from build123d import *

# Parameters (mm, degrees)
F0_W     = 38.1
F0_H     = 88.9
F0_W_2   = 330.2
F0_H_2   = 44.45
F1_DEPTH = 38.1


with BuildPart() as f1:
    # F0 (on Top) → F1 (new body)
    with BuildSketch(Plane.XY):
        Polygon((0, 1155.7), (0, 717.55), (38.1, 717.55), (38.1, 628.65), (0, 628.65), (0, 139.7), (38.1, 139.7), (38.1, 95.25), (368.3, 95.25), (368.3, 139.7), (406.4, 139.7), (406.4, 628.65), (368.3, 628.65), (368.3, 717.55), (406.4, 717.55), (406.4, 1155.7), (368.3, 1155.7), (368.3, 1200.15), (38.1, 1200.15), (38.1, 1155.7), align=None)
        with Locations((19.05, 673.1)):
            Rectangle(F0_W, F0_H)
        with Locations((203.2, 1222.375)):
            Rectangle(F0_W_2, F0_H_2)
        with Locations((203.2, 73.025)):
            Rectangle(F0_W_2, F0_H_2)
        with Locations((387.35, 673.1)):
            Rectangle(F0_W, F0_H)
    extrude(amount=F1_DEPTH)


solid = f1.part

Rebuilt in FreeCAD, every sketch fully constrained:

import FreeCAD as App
import Part
import Sketcher
from FreeCAD import Vector
Q = App.Units.Quantity


def add_polygon(sketch, points):
    """Adds a closed chain of lines whose ends are joined by coincident constraints."""
    first, n = sketch.GeometryCount, len(points)
    for a, b in zip(points, points[1:] + points[:1]):
        sketch.addGeometry(Part.LineSegment(App.Vector(*a, 0), App.Vector(*b, 0)), False)
    for i in range(n):
        sketch.addConstraint(Sketcher.Constraint("Coincident", first + i, 2, first + (i + 1) % n, 1))

doc = App.newDocument("Part")
params = doc.addObject("Spreadsheet::Sheet", "Params")
for row, (alias, value) in enumerate([
    ("sketch1_width", "13 in"),
    ("sketch1_height", "40 in"),
    ("sketch1_width2", "1.5 in"),
    ("sketch1_height2", "3.5 in"),
    ("pad1_length", "1.5 in"),
], start=1):
    params.set(f"A{row}", alias)
    params.set(f"B{row}", "=" + value)
    params.setAlias(f"B{row}", alias)

body = doc.addObject("PartDesign::Body", "Body")

# Sketch on XY plane
sketch1 = doc.addObject("Sketcher::SketchObject", "Sketch")
body.addObject(sketch1)
sketch1.AttachmentSupport = (doc.XY_Plane, [""])
sketch1.MapMode = "FlatFace"
add_polygon(sketch1, [(0, 1156), (0, 140), (38, 140), (38, 51), (368, 51), (368, 140), (406, 140), (406, 1156), (368, 1156), (368, 1245), (38, 1245), (38, 1156)])  # lines 0-11
sketch1.addConstraint([
    Sketcher.Constraint("Vertical", 0),
    Sketcher.Constraint("Horizontal", 1),
    Sketcher.Constraint("Vertical", 2),
    Sketcher.Constraint("Horizontal", 3),
    Sketcher.Constraint("Vertical", 4),
    Sketcher.Constraint("Horizontal", 5),
    Sketcher.Constraint("Vertical", 6),
    Sketcher.Constraint("Horizontal", 7),
    Sketcher.Constraint("Vertical", 8),
    Sketcher.Constraint("Horizontal", 9),
    Sketcher.Constraint("Vertical", 10),
    Sketcher.Constraint("Horizontal", 11),
    Sketcher.Constraint("PointOnObject", 0, 2, -2),
    Sketcher.Constraint("Horizontal", 1, 2, 4, 2),
    Sketcher.Constraint("Horizontal", 7, 2, 10, 2),
    Sketcher.Constraint("Vertical", 4, 2, 7, 2),
    Sketcher.Constraint("Vertical", 2, 2, 9, 2),
    Sketcher.Constraint("Equal", 1, 5),
    Sketcher.Constraint("Equal", 4, 8),
    Sketcher.Constraint("DistanceX", 3, 1, 3, 2, Q("13 in")),
    Sketcher.Constraint("DistanceY", 0, 2, 0, 1, Q("40 in")),
    Sketcher.Constraint("DistanceX", 1, 1, 1, 2, Q("1.5 in")),
    Sketcher.Constraint("DistanceY", 2, 2, 2, 1, Q("3.5 in")),
    Sketcher.Constraint("DistanceY", -1, 1, 2, 2, Q("2 in")),
])
sketch1.setExpression("Constraints[31]", "Params.sketch1_width")
sketch1.setExpression("Constraints[32]", "Params.sketch1_height")
sketch1.setExpression("Constraints[33]", "Params.sketch1_width2")
sketch1.setExpression("Constraints[34]", "Params.sketch1_height2")
pad1 = doc.addObject("PartDesign::Pad", "Pad")
body.addObject(pad1)
pad1.Profile = sketch1
pad1.setExpression("Length", "Params.pad1_length")

doc.recompute()
